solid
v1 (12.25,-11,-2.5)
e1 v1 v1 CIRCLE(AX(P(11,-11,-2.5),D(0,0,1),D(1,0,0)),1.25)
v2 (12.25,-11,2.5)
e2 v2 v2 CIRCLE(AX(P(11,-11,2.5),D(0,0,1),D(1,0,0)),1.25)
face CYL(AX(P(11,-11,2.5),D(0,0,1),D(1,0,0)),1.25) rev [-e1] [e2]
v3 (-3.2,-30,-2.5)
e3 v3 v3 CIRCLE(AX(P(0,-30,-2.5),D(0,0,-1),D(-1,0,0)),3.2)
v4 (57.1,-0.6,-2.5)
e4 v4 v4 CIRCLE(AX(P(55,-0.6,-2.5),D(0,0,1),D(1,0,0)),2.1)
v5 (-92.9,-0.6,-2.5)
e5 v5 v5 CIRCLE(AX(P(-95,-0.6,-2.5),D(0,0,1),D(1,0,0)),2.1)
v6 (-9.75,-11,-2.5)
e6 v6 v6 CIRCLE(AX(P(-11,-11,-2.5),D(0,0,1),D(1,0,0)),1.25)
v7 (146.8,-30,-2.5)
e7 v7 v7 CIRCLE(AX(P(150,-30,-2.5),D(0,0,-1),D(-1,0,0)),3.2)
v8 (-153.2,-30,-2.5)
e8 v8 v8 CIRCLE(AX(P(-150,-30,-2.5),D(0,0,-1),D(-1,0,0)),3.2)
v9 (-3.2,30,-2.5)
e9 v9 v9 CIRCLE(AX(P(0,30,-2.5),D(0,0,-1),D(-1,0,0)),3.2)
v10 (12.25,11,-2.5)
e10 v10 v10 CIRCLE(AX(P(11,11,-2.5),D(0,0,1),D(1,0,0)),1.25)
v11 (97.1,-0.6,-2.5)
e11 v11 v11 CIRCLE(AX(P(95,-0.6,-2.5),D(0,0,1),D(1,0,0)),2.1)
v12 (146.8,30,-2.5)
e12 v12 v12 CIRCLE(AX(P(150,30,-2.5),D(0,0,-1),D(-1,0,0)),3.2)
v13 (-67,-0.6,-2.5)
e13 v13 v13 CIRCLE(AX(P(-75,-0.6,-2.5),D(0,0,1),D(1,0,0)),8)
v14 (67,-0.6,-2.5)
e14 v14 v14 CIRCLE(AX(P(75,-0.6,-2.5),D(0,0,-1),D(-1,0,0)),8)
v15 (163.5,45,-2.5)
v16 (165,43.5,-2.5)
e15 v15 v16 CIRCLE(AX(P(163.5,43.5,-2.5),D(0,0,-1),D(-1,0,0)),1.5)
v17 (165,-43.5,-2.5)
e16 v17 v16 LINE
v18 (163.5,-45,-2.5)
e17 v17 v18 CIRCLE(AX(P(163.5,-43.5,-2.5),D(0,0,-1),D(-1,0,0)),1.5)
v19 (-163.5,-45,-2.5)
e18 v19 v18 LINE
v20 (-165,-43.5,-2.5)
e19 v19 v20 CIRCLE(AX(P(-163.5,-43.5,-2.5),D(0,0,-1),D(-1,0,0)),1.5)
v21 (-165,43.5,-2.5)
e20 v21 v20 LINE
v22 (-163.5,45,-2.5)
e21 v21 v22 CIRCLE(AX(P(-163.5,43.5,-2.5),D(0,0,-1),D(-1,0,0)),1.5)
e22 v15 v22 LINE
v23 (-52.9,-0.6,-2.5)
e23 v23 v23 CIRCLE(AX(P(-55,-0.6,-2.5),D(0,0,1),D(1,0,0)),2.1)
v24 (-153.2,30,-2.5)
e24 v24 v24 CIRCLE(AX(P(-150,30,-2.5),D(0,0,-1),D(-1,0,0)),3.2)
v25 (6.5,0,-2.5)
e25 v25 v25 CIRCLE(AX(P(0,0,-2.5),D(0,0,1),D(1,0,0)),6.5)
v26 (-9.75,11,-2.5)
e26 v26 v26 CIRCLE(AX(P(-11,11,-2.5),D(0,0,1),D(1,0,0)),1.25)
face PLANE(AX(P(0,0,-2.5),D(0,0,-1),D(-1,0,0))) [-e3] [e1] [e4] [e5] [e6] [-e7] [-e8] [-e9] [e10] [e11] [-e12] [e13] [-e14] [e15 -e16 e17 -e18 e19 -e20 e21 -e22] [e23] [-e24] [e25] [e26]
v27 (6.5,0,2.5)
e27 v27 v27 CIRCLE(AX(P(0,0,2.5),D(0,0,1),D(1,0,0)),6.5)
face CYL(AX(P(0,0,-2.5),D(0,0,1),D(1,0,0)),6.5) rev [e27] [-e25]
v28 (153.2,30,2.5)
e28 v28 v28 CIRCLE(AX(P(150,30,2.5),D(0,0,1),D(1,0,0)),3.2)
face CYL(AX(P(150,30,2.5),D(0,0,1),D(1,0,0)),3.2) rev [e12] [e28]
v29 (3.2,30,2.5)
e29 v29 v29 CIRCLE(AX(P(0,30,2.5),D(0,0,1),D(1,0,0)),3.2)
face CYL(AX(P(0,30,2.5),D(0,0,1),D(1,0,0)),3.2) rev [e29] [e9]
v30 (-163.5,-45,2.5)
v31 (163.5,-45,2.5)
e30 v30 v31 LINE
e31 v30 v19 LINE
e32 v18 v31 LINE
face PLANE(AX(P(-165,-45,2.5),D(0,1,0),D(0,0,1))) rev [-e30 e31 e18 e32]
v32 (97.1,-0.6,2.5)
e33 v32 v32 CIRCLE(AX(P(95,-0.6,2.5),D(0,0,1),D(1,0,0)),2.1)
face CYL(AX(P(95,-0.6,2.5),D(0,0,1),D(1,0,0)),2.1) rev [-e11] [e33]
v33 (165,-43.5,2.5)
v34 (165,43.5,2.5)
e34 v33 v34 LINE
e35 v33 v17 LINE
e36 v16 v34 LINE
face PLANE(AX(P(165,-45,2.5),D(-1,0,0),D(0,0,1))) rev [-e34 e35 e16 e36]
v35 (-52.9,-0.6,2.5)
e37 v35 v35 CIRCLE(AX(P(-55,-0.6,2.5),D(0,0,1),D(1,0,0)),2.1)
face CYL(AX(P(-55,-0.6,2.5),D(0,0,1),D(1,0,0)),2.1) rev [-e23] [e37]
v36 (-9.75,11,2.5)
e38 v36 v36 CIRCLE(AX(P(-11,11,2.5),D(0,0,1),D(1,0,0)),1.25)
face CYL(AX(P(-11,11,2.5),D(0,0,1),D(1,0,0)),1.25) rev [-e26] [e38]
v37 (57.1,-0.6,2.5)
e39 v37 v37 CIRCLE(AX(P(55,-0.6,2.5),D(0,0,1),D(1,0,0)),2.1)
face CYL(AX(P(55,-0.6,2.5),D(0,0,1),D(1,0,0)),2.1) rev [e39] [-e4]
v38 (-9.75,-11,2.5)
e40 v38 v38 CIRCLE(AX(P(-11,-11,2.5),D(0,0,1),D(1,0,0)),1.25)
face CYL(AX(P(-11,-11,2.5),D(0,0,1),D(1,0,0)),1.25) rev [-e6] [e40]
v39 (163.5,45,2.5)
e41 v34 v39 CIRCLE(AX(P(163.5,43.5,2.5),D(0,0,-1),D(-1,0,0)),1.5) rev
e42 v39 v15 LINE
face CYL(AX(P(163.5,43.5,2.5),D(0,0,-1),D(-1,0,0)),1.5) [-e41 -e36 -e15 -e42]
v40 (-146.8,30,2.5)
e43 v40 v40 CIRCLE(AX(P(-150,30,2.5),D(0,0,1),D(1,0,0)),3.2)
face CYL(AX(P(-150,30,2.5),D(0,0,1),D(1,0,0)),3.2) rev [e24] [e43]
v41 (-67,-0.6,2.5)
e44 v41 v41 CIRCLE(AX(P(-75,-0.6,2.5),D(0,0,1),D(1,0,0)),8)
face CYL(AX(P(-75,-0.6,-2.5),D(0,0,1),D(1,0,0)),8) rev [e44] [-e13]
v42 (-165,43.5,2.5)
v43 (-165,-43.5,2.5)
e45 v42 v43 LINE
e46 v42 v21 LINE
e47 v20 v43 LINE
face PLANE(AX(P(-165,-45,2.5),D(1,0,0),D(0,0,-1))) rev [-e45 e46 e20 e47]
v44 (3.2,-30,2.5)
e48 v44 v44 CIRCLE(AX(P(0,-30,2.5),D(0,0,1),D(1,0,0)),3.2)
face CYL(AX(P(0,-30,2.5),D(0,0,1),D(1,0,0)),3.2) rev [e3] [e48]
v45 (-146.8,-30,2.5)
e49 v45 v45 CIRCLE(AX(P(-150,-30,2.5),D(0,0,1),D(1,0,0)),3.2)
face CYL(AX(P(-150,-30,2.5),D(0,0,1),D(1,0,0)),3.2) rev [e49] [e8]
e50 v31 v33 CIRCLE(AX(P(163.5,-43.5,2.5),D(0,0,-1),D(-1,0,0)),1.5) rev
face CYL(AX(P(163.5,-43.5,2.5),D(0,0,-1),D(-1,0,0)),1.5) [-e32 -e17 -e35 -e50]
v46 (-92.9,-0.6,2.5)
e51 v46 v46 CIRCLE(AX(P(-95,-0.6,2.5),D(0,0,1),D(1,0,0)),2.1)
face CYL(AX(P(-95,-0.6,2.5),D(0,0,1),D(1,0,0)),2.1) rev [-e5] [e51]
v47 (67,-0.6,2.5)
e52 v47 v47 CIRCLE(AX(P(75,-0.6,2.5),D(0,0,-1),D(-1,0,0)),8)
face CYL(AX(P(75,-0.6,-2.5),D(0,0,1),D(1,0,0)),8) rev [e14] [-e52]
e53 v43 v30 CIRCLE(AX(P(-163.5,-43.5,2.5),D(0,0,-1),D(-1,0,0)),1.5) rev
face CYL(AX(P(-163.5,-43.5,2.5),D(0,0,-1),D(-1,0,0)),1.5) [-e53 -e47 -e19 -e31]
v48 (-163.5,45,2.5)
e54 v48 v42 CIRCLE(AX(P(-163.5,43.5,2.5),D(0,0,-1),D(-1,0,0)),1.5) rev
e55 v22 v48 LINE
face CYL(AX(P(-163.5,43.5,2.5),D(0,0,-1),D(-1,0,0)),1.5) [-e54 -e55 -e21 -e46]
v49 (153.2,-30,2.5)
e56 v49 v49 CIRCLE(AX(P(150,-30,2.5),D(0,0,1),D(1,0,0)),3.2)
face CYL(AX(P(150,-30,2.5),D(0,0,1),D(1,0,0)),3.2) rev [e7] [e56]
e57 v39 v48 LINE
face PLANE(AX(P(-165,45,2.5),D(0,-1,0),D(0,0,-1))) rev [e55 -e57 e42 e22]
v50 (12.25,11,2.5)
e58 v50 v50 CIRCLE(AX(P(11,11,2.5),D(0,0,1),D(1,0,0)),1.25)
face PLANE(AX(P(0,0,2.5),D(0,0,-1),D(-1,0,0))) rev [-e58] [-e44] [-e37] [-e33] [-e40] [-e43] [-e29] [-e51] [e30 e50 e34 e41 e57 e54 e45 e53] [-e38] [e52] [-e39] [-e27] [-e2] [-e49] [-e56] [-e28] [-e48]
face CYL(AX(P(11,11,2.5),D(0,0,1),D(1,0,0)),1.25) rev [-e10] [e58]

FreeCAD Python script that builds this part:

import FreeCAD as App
import Part
import Sketcher

V = App.Vector


def edges_at(feature, points):
    """Names of the edges that pass closest to the given points."""
    edges = feature.Shape.Edges
    near = lambda p: min(range(len(edges)), key=lambda i: edges[i].distToShape(Part.Vertex(*p))[0])
    return sorted({f"Edge{near(p) + 1}" for p in points})

doc = App.newDocument("Part")
params = doc.addObject("Spreadsheet::Sheet", "Params")
for row, (alias, value) in enumerate([
    ("sketch1_width", "330 mm"),
    ("sketch1_height", "90 mm"),
    ("pad1_length", "5 mm"),
    ("sketch2_diameter", "6.4 mm"),
    ("hole_diameter", "6.4 mm"),
    ("hole_depth", "10 mm"),
    ("sketch3_diameter", "16 mm"),
    ("sketch4_diameter", "4.2 mm"),
    ("hole2_diameter", "4.2 mm"),
    ("sketch5_diameter", "13 mm"),
    ("sketch6_diameter", "2.5 mm"),
    ("hole3_diameter", "2.5 mm"),
    ("fillet_radius", "1.5 mm"),
], start=1):
    params.set(f"A{row}", alias)
    params.set(f"B{row}", "=" + value)
    params.setAlias(f"B{row}", alias)

body = doc.addObject("PartDesign::Body", "Body")

sketch1 = doc.addObject("Sketcher::SketchObject", "Sketch")
body.addObject(sketch1)
sketch1.AttachmentSupport = (doc.XY_Plane, [""])
sketch1.MapMode = "FlatFace"
sketch1.addGeometry([
    Part.LineSegment(V(-165, 45, 0), V(-165, -45, 0)),
    Part.LineSegment(V(-165, -45, 0), V(165, -45, 0)),
    Part.LineSegment(V(165, -45, 0), V(165, 45, 0)),
    Part.LineSegment(V(165, 45, 0), V(-165, 45, 0)),
], False)
sketch1.addConstraint([
    Sketcher.Constraint("Coincident", 0, 2, 1, 1),
    Sketcher.Constraint("Coincident", 1, 2, 2, 1),
    Sketcher.Constraint("Coincident", 2, 2, 3, 1),
    Sketcher.Constraint("Coincident", 3, 2, 0, 1),
    Sketcher.Constraint("Vertical", 0),
    Sketcher.Constraint("Horizontal", 1),
    Sketcher.Constraint("Vertical", 2),
    Sketcher.Constraint("Horizontal", 3),
    Sketcher.Constraint("Symmetric", 0, 2, 2, 2, -1, 1),
    Sketcher.Constraint("DistanceX", 1, 1, 1, 2, 330.0),
    Sketcher.Constraint("DistanceY", 0, 2, 0, 1, 90.0),
])
sketch1.setExpression("Constraints[9]", "Params.sketch1_width")
sketch1.setExpression("Constraints[10]", "Params.sketch1_height")
pad1 = doc.addObject("PartDesign::Pad", "Pad")
body.addObject(pad1)
pad1.Profile = sketch1
pad1.setExpression("Length", "Params.pad1_length")
pad1.Midplane = True

sketch2 = doc.addObject("Sketcher::SketchObject", "Sketch001")
body.addObject(sketch2)
sketch2.AttachmentSupport = (doc.XY_Plane, [""])
sketch2.MapMode = "FlatFace"
sketch2.AttachmentOffset = App.Placement(V(0, 0, 2.5), App.Rotation())
sketch2.addGeometry([
    Part.Circle(V(-150, 30, 0), V(0, 0, 1), 3.2),
    Part.Circle(V(-150, -30, 0), V(0, 0, 1), 3.2),
    Part.Circle(V(0, 30, 0), V(0, 0, 1), 3.2),
    Part.Circle(V(0, -30, 0), V(0, 0, 1), 3.2),
    Part.Circle(V(150, -30, 0), V(0, 0, 1), 3.2),
    Part.Circle(V(150, 30, 0), V(0, 0, 1), 3.2),
], False)
sketch2.addConstraint([
    Sketcher.Constraint("Equal", 0, 1),
    Sketcher.Constraint("Equal", 1, 2),
    Sketcher.Constraint("Equal", 2, 3),
    Sketcher.Constraint("Equal", 3, 4),
    Sketcher.Constraint("Equal", 4, 5),
    Sketcher.Constraint("Symmetric", 2, 3, 3, 3, -1, 1),
    Sketcher.Constraint("Symmetric", 0, 3, 4, 3, -1, 1),
    Sketcher.Constraint("Symmetric", 1, 3, 5, 3, -1, 1),
    Sketcher.Constraint("Symmetric", 1, 3, 4, 3, -2),
    Sketcher.Constraint("PointOnObject", 2, 3, -2),
    Sketcher.Constraint("Horizontal", 0, 3, 2, 3),
    Sketcher.Constraint("Diameter", 0, 6.4),
    Sketcher.Constraint("DistanceX", 0, 3, -1, 1, 150.0),
    Sketcher.Constraint("DistanceY", -1, 1, 0, 3, 30.0),
])
sketch2.setExpression("Constraints[11]", "Params.sketch2_diameter")
doc.recompute()
hole = doc.addObject("PartDesign::Hole", "Hole")
body.addObject(hole)
hole.Profile = sketch2
hole.ThreadType = "None"
hole.setExpression("Diameter", "Params.hole_diameter")
hole.DepthType = "Dimension"
hole.setExpression("Depth", "Params.hole_depth")
hole.DrillPoint = "Angled"
hole.DrillPointAngle = 118

sketch3 = doc.addObject("Sketcher::SketchObject", "Sketch002")
body.addObject(sketch3)
sketch3.AttachmentSupport = (doc.XY_Plane, [""])
sketch3.MapMode = "FlatFace"
sketch3.AttachmentOffset = App.Placement(V(0, 0, 2.5), App.Rotation())
sketch3.addGeometry(Part.Circle(V(-75, -1, 0), V(0, 0, 1), 8), False)
sketch3.addConstraint([
    Sketcher.Constraint("Diameter", 0, 16.0),
    Sketcher.Constraint("DistanceX", 0, 3, -1, 1, 75.0),
    Sketcher.Constraint("DistanceY", 0, 3, -1, 1, 0.6),
])
sketch3.setExpression("Constraints[0]", "Params.sketch3_diameter")
pocket1 = doc.addObject("PartDesign::Pocket", "Pocket")
body.addObject(pocket1)
pocket1.Profile = sketch3
pocket1.Type = "ThroughAll"

sketch4 = doc.addObject("Sketcher::SketchObject", "Sketch003")
body.addObject(sketch4)
sketch4.AttachmentSupport = (doc.XY_Plane, [""])
sketch4.MapMode = "FlatFace"
sketch4.AttachmentOffset = App.Placement(V(0, 0, 2.5), App.Rotation())
sketch4.addGeometry([
    Part.Circle(V(-95, -0.6, 0), V(0, 0, 1), 2.1),
    Part.Circle(V(-55, -0.6, 0), V(0, 0, 1), 2.1),
], False)
sketch4.addConstraint([
    Sketcher.Constraint("Equal", 0, 1),
    Sketcher.Constraint("Horizontal", 0, 3, 1, 3),
    Sketcher.Constraint("Diameter", 0, 4.2),
    Sketcher.Constraint("DistanceX", 0, 3, -1, 1, 95.0),
    Sketcher.Constraint("DistanceX", 1, 3, -1, 1, 55.0),
    Sketcher.Constraint("DistanceY", 0, 3, -1, 1, 0.6),
])
sketch4.setExpression("Constraints[2]", "Params.sketch4_diameter")
doc.recompute()
hole2 = doc.addObject("PartDesign::Hole", "Hole001")
body.addObject(hole2)
hole2.Profile = sketch4
hole2.ThreadType = "None"
hole2.setExpression("Diameter", "Params.hole2_diameter")
hole2.DepthType = "ThroughAll"
doc.recompute()

mirrored = doc.addObject("PartDesign::Mirrored", "Mirrored")
body.addObject(mirrored)
mirrored.Originals = [pocket1, hole2]
mirrored.MirrorPlane = (doc.YZ_Plane, [""])
body.Tip = mirrored

sketch5 = doc.addObject("Sketcher::SketchObject", "Sketch004")
body.addObject(sketch5)
sketch5.AttachmentSupport = (doc.XY_Plane, [""])
sketch5.MapMode = "FlatFace"
sketch5.AttachmentOffset = App.Placement(V(0, 0, 2.5), App.Rotation())
sketch5.addGeometry(Part.Circle(V(0, 0, 0), V(0, 0, 1), 6), False)
sketch5.addConstraint([
    Sketcher.Constraint("Coincident", 0, 3, -1, 1),
    Sketcher.Constraint("Diameter", 0, 13.0),
])
sketch5.setExpression("Constraints[1]", "Params.sketch5_diameter")
pocket2 = doc.addObject("PartDesign::Pocket", "Pocket001")
body.addObject(pocket2)
pocket2.Profile = sketch5
pocket2.Type = "ThroughAll"

sketch6 = doc.addObject("Sketcher::SketchObject", "Sketch005")
body.addObject(sketch6)
sketch6.AttachmentSupport = (doc.XY_Plane, [""])
sketch6.MapMode = "FlatFace"
sketch6.AttachmentOffset = App.Placement(V(0, 0, 2.5), App.Rotation())
sketch6.addGeometry([
    Part.Circle(V(11, 11, 0), V(0, 0, 1), 1.2),
    Part.Circle(V(-11, -11, 0), V(0, 0, 1), 1.2),
    Part.Circle(V(-11, 11, 0), V(0, 0, 1), 1.2),
    Part.Circle(V(11, -11, 0), V(0, 0, 1), 1.2),
], False)
sketch6.addConstraint([
    Sketcher.Constraint("Equal", 0, 1),
    Sketcher.Constraint("Equal", 1, 2),
    Sketcher.Constraint("Equal", 2, 3),
    Sketcher.Constraint("Symmetric", 0, 3, 1, 3, -1, 1),
    Sketcher.Constraint("Symmetric", 2, 3, 3, 3, -1, 1),
    Sketcher.Constraint("Symmetric", 0, 3, 2, 3, -2),
    Sketcher.Constraint("Diameter", 0, 2.5),
    Sketcher.Constraint("DistanceX", -1, 1, 0, 3, 11.0),
    Sketcher.Constraint("DistanceY", -1, 1, 0, 3, 11.0),
])
sketch6.setExpression("Constraints[6]", "Params.sketch6_diameter")
doc.recompute()
hole3 = doc.addObject("PartDesign::Hole", "Hole002")
body.addObject(hole3)
hole3.Profile = sketch6
hole3.ThreadType = "None"
hole3.setExpression("Diameter", "Params.hole3_diameter")
hole3.DepthType = "ThroughAll"
doc.recompute()

fillet = doc.addObject("PartDesign::Fillet", "Fillet")
body.addObject(fillet)
fillet.Base = (hole3, edges_at(hole3, [
    (165, -45, 0),
    (-165, -45, 0),
    (-165, 45, 0),
    (165, 45, 0),
]))
fillet.setExpression("Radius", "Params.fillet_radius")

doc.recompute()
